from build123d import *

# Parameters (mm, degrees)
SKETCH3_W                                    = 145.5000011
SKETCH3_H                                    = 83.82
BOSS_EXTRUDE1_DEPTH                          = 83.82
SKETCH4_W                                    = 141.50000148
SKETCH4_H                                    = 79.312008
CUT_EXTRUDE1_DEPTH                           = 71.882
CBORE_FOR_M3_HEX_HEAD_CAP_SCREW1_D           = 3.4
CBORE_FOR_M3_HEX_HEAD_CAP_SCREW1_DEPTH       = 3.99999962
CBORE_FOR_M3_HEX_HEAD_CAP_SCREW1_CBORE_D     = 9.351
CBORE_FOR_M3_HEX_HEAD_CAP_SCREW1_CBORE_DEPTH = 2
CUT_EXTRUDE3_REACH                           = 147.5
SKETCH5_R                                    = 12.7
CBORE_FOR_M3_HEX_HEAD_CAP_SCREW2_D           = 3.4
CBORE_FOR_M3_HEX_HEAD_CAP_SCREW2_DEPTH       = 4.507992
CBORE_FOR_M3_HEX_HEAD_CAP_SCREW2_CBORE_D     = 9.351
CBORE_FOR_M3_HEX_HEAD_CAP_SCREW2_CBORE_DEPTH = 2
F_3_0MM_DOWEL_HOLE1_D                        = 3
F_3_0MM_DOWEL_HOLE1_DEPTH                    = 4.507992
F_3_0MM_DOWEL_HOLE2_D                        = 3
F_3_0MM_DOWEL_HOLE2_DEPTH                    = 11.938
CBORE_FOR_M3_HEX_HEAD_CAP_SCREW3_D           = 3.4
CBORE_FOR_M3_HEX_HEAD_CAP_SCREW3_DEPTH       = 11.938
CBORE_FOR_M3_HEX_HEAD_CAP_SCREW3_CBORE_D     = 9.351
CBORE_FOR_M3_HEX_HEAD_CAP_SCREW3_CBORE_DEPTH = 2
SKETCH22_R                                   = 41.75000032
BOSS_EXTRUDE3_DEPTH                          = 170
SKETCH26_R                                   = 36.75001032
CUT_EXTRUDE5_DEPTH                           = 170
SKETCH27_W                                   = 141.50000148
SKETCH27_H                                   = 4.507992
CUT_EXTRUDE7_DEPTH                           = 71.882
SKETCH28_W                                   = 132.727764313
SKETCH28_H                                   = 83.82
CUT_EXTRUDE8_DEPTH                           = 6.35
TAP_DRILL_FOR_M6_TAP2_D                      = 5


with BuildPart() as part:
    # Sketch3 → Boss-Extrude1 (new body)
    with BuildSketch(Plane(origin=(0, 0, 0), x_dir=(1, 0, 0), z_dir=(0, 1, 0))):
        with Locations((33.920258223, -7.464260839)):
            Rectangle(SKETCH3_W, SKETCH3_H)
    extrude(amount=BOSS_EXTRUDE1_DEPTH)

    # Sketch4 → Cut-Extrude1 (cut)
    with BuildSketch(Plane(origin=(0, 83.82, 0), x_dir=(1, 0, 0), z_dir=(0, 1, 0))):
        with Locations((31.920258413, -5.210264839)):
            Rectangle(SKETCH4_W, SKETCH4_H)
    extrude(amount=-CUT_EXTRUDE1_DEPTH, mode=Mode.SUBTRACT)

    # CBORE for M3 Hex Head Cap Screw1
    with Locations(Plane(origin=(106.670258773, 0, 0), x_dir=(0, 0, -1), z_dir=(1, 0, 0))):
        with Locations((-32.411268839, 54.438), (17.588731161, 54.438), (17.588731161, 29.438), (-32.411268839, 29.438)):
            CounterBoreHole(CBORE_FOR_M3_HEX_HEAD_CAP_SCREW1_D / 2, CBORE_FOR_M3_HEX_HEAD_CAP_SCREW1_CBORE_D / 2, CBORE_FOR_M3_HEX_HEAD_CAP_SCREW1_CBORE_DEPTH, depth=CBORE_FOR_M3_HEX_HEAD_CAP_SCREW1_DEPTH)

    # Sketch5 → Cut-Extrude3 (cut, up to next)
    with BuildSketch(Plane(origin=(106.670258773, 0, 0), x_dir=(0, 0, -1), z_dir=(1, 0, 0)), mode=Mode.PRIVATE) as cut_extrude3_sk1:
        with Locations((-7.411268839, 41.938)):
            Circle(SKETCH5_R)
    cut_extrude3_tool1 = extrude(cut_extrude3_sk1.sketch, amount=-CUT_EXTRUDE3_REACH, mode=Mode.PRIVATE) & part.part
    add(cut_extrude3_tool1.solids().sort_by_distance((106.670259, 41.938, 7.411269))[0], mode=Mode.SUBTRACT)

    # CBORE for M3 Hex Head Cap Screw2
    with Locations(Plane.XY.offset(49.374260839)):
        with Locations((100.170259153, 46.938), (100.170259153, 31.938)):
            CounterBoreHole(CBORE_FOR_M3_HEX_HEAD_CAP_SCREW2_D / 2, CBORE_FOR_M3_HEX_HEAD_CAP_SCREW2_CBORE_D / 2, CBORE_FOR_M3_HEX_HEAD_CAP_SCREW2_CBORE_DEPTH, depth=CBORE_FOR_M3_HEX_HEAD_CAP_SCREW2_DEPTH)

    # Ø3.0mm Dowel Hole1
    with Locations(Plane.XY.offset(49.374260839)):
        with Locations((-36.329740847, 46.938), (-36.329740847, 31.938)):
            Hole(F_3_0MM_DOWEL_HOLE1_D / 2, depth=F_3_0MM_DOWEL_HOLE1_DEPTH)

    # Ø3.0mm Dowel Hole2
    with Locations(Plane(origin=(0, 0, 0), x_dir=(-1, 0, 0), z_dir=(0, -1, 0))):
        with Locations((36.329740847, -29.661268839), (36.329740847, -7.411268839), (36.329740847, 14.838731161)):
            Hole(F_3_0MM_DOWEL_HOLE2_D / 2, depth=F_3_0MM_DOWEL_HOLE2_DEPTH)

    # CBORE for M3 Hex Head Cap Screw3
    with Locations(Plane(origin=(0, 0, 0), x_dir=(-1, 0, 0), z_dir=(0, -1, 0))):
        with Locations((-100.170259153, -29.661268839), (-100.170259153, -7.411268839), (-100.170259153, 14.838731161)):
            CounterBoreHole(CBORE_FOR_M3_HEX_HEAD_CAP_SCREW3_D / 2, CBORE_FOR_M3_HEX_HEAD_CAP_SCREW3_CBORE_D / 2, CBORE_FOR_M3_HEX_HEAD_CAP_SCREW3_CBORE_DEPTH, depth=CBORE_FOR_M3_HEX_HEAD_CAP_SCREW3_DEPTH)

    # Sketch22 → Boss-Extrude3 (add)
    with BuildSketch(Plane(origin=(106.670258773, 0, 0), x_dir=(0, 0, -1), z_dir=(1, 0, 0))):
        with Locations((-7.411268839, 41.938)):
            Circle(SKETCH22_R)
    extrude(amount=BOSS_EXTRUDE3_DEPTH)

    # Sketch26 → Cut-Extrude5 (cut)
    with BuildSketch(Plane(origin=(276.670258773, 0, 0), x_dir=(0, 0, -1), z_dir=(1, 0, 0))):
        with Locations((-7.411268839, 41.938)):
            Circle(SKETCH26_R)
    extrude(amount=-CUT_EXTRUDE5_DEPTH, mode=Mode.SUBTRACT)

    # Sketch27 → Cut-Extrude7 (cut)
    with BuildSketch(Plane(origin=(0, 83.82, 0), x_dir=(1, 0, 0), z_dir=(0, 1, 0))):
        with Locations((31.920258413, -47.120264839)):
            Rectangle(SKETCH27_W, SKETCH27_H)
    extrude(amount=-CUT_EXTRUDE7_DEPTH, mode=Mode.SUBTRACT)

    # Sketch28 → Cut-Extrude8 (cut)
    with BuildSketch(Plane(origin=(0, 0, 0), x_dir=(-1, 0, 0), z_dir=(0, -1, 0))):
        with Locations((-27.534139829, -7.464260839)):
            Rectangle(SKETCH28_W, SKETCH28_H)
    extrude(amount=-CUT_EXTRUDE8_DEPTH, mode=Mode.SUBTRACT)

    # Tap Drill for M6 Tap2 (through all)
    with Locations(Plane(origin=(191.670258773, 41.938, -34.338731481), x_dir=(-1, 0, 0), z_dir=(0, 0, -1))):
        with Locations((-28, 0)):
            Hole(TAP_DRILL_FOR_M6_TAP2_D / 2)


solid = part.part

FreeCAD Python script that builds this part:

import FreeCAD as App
import Part
import Sketcher

V = App.Vector

doc = App.newDocument("Part")
body = doc.addObject("PartDesign::Body", "Body")

# Sketch on XZ plane
sketch1 = body.newObject("Sketcher::SketchObject", "Sketch")
sketch1.AttachmentSupport = (doc.getObject("XZ_Plane"), [""])
sketch1.MapMode = "FlatFace"
sketch1.addGeometry([
    Part.LineSegment(V(-39, -34, 0), V(-39, 49, 0)),
    Part.LineSegment(V(-39, 49, 0), V(107, 49, 0)),
    Part.LineSegment(V(107, 49, 0), V(107, -34, 0)),
    Part.LineSegment(V(107, -34, 0), V(-39, -34, 0)),
], False)
sketch1.addConstraint([
    Sketcher.Constraint("Coincident", 0, 2, 1, 1),
    Sketcher.Constraint("Coincident", 1, 2, 2, 1),
    Sketcher.Constraint("Coincident", 2, 2, 3, 1),
    Sketcher.Constraint("Coincident", 3, 2, 0, 1),
    Sketcher.Constraint("Vertical", 0),
    Sketcher.Constraint("Horizontal", 1),
    Sketcher.Constraint("Vertical", 2),
    Sketcher.Constraint("Horizontal", 3),
    Sketcher.Constraint("DistanceX", 1, 1, 1, 2, 145.500001),
    Sketcher.Constraint("DistanceY", 0, 1, 0, 2, 83.82),
    Sketcher.Constraint("DistanceY", -1, 1, 0, 2, 49.374261),
    Sketcher.Constraint("DistanceX", -1, 1, 1, 2, 106.670259),
])
pad1 = body.newObject("PartDesign::Pad", "Pad")
pad1.Profile = sketch1
pad1.Length = 83.82
pad1.Reversed = True

# Sketch on XZ plane
sketch2 = body.newObject("Sketcher::SketchObject", "Sketch001")
sketch2.AttachmentSupport = (doc.getObject("XZ_Plane"), [""])
sketch2.MapMode = "FlatFace"
sketch2.AttachmentOffset = App.Placement(V(0, 0, -83.82), App.Rotation())
sketch2.addGeometry([
    Part.LineSegment(V(-39, -34, 0), V(-39, 45, 0)),
    Part.LineSegment(V(-39, 45, 0), V(103, 45, 0)),
    Part.LineSegment(V(103, 45, 0), V(103, -34, 0)),
    Part.LineSegment(V(103, -34, 0), V(-39, -34, 0)),
], False)
sketch2.addConstraint([
    Sketcher.Constraint("Coincident", 0, 2, 1, 1),
    Sketcher.Constraint("Coincident", 1, 2, 2, 1),
    Sketcher.Constraint("Coincident", 2, 2, 3, 1),
    Sketcher.Constraint("Coincident", 3, 2, 0, 1),
    Sketcher.Constraint("Vertical", 0),
    Sketcher.Constraint("Horizontal", 1),
    Sketcher.Constraint("Vertical", 2),
    Sketcher.Constraint("Horizontal", 3),
    Sketcher.Constraint("DistanceX", 1, 1, 1, 2, 141.500001),
    Sketcher.Constraint("DistanceY", 0, 1, 0, 2, 79.312008),
    Sketcher.Constraint("DistanceY", -1, 1, 0, 2, 44.866269),
    Sketcher.Constraint("DistanceX", -1, 1, 1, 2, 102.670259),
])
pocket1 = body.newObject("PartDesign::Pocket", "Pocket")
pocket1.Profile = sketch2
pocket1.Length = 71.882
pocket1.Reversed = True

# Sketch on YZ plane
sketch3 = body.newObject("Sketcher::SketchObject", "Sketch002")
sketch3.AttachmentSupport = (doc.getObject("YZ_Plane"), [""])
sketch3.MapMode = "FlatFace"
sketch3.AttachmentOffset = App.Placement(V(0, 0, 106.670259), App.Rotation())
sketch3.addGeometry([
    Part.Circle(V(54.4, 32.4, 0), V(0, 0, 1), 1.7),
    Part.Circle(V(54.4, -17.6, 0), V(0, 0, 1), 1.7),
    Part.Circle(V(29.4, -17.6, 0), V(0, 0, 1), 1.7),
    Part.Circle(V(29.4, 32.4, 0), V(0, 0, 1), 1.7),
], False)
sketch3.addConstraint([
    Sketcher.Constraint("Equal", 0, 1),
    Sketcher.Constraint("Equal", 1, 2),
    Sketcher.Constraint("Equal", 2, 3),
    Sketcher.Constraint("Horizontal", 1, 3, 2, 3),
    Sketcher.Constraint("Horizontal", 0, 3, 3, 3),
    Sketcher.Constraint("Vertical", 0, 3, 1, 3),
    Sketcher.Constraint("Vertical", 2, 3, 3, 3),
    Sketcher.Constraint("Diameter", 0, 3.4),
    Sketcher.Constraint("DistanceY", 1, 3, 0, 3, 50.0),
    Sketcher.Constraint("DistanceX", 2, 3, 1, 3, 25.0),
    Sketcher.Constraint("DistanceX", -1, 1, 0, 3, 54.438),
    Sketcher.Constraint("DistanceY", -1, 1, 0, 3, 32.411269),
])
doc.recompute()
hole = body.newObject("PartDesign::Hole", "Hole")
hole.Profile = sketch3
hole.ThreadType = "None"
hole.Diameter = 3.4
hole.DepthType = "Dimension"
hole.Depth = 4
hole.DrillPoint = "Flat"
hole.HoleCutType = "Counterbore"
hole.HoleCutDiameter = 9.351
hole.HoleCutDepth = 2

# Sketch on YZ plane
sketch4 = body.newObject("Sketcher::SketchObject", "Sketch003")
sketch4.AttachmentSupport = (doc.getObject("YZ_Plane"), [""])
sketch4.MapMode = "FlatFace"
sketch4.AttachmentOffset = App.Placement(V(0, 0, 106.670259), App.Rotation())
sketch4.addGeometry(Part.Circle(V(42, 7, 0), V(0, 0, 1), 13), False)
sketch4.addConstraint([
    Sketcher.Constraint("Diameter", 0, 25.4),
    Sketcher.Constraint("DistanceX", -1, 1, 0, 3, 41.938),
    Sketcher.Constraint("DistanceY", -1, 1, 0, 3, 7.411269),
])
pocket2 = body.newObject("PartDesign::Pocket", "Pocket001")
pocket2.Profile = sketch4
pocket2.Type = "UpToFirst"

# Sketch on XY plane
sketch5 = body.newObject("Sketcher::SketchObject", "Sketch004")
sketch5.AttachmentSupport = (doc.getObject("XY_Plane"), [""])
sketch5.MapMode = "FlatFace"
sketch5.AttachmentOffset = App.Placement(V(0, 0, 49.374261), App.Rotation())
sketch5.addGeometry([
    Part.Circle(V(100.2, 46.9, 0), V(0, 0, 1), 1.7),
    Part.Circle(V(100.2, 31.9, 0), V(0, 0, 1), 1.7),
], False)
sketch5.addConstraint([
    Sketcher.Constraint("Equal", 0, 1),
    Sketcher.Constraint("Vertical", 0, 3, 1, 3),
    Sketcher.Constraint("Diameter", 0, 3.4),
    Sketcher.Constraint("DistanceY", 1, 3, 0, 3, 15.0),
    Sketcher.Constraint("DistanceY", -1, 1, 0, 3, 46.938),
    Sketcher.Constraint("DistanceX", -1, 1, 0, 3, 100.170259),
])
doc.recompute()
hole2 = body.newObject("PartDesign::Hole", "Hole001")
hole2.Profile = sketch5
hole2.ThreadType = "None"
hole2.Diameter = 3.4
hole2.DepthType = "Dimension"
hole2.Depth = 4.507992
hole2.DrillPoint = "Flat"
hole2.HoleCutType = "Counterbore"
hole2.HoleCutDiameter = 9.351
hole2.HoleCutDepth = 2

# Sketch on XY plane
sketch6 = body.newObject("Sketcher::SketchObject", "Sketch005")
sketch6.AttachmentSupport = (doc.getObject("XY_Plane"), [""])
sketch6.MapMode = "FlatFace"
sketch6.AttachmentOffset = App.Placement(V(0, 0, 49.374261), App.Rotation())
sketch6.addGeometry([
    Part.Circle(V(-36.3, 46.9, 0), V(0, 0, 1), 1.5),
    Part.Circle(V(-36.3, 31.9, 0), V(0, 0, 1), 1.5),
], False)
sketch6.addConstraint([
    Sketcher.Constraint("Equal", 0, 1),
    Sketcher.Constraint("Vertical", 0, 3, 1, 3),
    Sketcher.Constraint("Diameter", 0, 3.0),
    Sketcher.Constraint("DistanceY", 1, 3, 0, 3, 15.0),
    Sketcher.Constraint("DistanceY", -1, 1, 0, 3, 46.938),
    Sketcher.Constraint("DistanceX", 0, 3, -1, 1, 36.329741),
])
doc.recompute()
hole3 = body.newObject("PartDesign::Hole", "Hole002")
hole3.Profile = sketch6
hole3.ThreadType = "None"
hole3.Diameter = 3
hole3.DepthType = "Dimension"
hole3.Depth = 4.507992
hole3.DrillPoint = "Flat"

# Sketch on XZ plane
sketch7 = body.newObject("Sketcher::SketchObject", "Sketch006")
sketch7.AttachmentSupport = (doc.getObject("XZ_Plane"), [""])
sketch7.MapMode = "FlatFace"
sketch7.addGeometry([
    Part.Circle(V(-36.3, 29.7, 0), V(0, 0, 1), 1.5),
    Part.Circle(V(-36.3, 7.4, 0), V(0, 0, 1), 1.5),
    Part.Circle(V(-36.3, -14.8, 0), V(0, 0, 1), 1.5),
], False)
sketch7.addConstraint([
    Sketcher.Constraint("Equal", 0, 1),
    Sketcher.Constraint("Equal", 1, 2),
    Sketcher.Constraint("Vertical", 0, 3, 1, 3),
    Sketcher.Constraint("Vertical", 1, 3, 2, 3),
    Sketcher.Constraint("Diameter", 0, 3.0),
    Sketcher.Constraint("DistanceY", 2, 3, 0, 3, 44.5),
    Sketcher.Constraint("DistanceY", 1, 3, 0, 3, 22.25),
    Sketcher.Constraint("DistanceX", 0, 3, -1, 1, 36.329741),
    Sketcher.Constraint("DistanceY", -1, 1, 0, 3, 29.661269),
])
doc.recompute()
hole4 = body.newObject("PartDesign::Hole", "Hole003")
hole4.Profile = sketch7
hole4.ThreadType = "None"
hole4.Diameter = 3
hole4.DepthType = "Dimension"
hole4.Depth = 11.938
hole4.DrillPoint = "Flat"

# Sketch on XZ plane
sketch8 = body.newObject("Sketcher::SketchObject", "Sketch007")
sketch8.AttachmentSupport = (doc.getObject("XZ_Plane"), [""])
sketch8.MapMode = "FlatFace"
sketch8.addGeometry([
    Part.Circle(V(100.2, 29.7, 0), V(0, 0, 1), 1.7),
    Part.Circle(V(100.2, 7.4, 0), V(0, 0, 1), 1.7),
    Part.Circle(V(100.2, -14.8, 0), V(0, 0, 1), 1.7),
], False)
sketch8.addConstraint([
    Sketcher.Constraint("Equal", 0, 1),
    Sketcher.Constraint("Equal", 1, 2),
    Sketcher.Constraint("Vertical", 0, 3, 1, 3),
    Sketcher.Constraint("Vertical", 1, 3, 2, 3),
    Sketcher.Constraint("Diameter", 0, 3.4),
    Sketcher.Constraint("DistanceY", 2, 3, 0, 3, 44.5),
    Sketcher.Constraint("DistanceY", 1, 3, 0, 3, 22.25),
    Sketcher.Constraint("DistanceX", -1, 1, 0, 3, 100.170259),
    Sketcher.Constraint("DistanceY", -1, 1, 0, 3, 29.661269),
])
doc.recompute()
hole5 = body.newObject("PartDesign::Hole", "Hole004")
hole5.Profile = sketch8
hole5.ThreadType = "None"
hole5.Diameter = 3.4
hole5.DepthType = "Dimension"
hole5.Depth = 11.938
hole5.DrillPoint = "Flat"
hole5.HoleCutType = "Counterbore"
hole5.HoleCutDiameter = 9.351
hole5.HoleCutDepth = 2

# Sketch on YZ plane
sketch9 = body.newObject("Sketcher::SketchObject", "Sketch008")
sketch9.AttachmentSupport = (doc.getObject("YZ_Plane"), [""])
sketch9.MapMode = "FlatFace"
sketch9.AttachmentOffset = App.Placement(V(0, 0, 106.670259), App.Rotation())
sketch9.addGeometry(Part.Circle(V(42, 7, 0), V(0, 0, 1), 42), False)
sketch9.addConstraint([
    Sketcher.Constraint("Diameter", 0, 83.500001),
    Sketcher.Constraint("DistanceX", -1, 1, 0, 3, 41.938),
    Sketcher.Constraint("DistanceY", -1, 1, 0, 3, 7.411269),
])
pad2 = body.newObject("PartDesign::Pad", "Pad001")
pad2.Profile = sketch9
pad2.Length = 170

# Sketch on YZ plane
sketch10 = body.newObject("Sketcher::SketchObject", "Sketch009")
sketch10.AttachmentSupport = (doc.getObject("YZ_Plane"), [""])
sketch10.MapMode = "FlatFace"
sketch10.AttachmentOffset = App.Placement(V(0, 0, 276.670259), App.Rotation())
sketch10.addGeometry(Part.Circle(V(42, 7, 0), V(0, 0, 1), 37), False)
sketch10.addConstraint([
    Sketcher.Constraint("Diameter", 0, 73.500021),
    Sketcher.Constraint("DistanceX", -1, 1, 0, 3, 41.938),
    Sketcher.Constraint("DistanceY", -1, 1, 0, 3, 7.411269),
])
pocket3 = body.newObject("PartDesign::Pocket", "Pocket002")
pocket3.Profile = sketch10
pocket3.Length = 170

# Sketch on XZ plane
sketch11 = body.newObject("Sketcher::SketchObject", "Sketch010")
sketch11.AttachmentSupport = (doc.getObject("XZ_Plane"), [""])
sketch11.MapMode = "FlatFace"
sketch11.AttachmentOffset = App.Placement(V(0, 0, -83.82), App.Rotation())
sketch11.addGeometry([
    Part.LineSegment(V(-38.8, 44.9, 0), V(-38.8, 49.4, 0)),
    Part.LineSegment(V(-38.8, 49.4, 0), V(102.7, 49.4, 0)),
    Part.LineSegment(V(102.7, 49.4, 0), V(102.7, 44.9, 0)),
    Part.LineSegment(V(102.7, 44.9, 0), V(-38.8, 44.9, 0)),
], False)
sketch11.addConstraint([
    Sketcher.Constraint("Coincident", 0, 2, 1, 1),
    Sketcher.Constraint("Coincident", 1, 2, 2, 1),
    Sketcher.Constraint("Coincident", 2, 2, 3, 1),
    Sketcher.Constraint("Coincident", 3, 2, 0, 1),
    Sketcher.Constraint("Vertical", 0),
    Sketcher.Constraint("Horizontal", 1),
    Sketcher.Constraint("Vertical", 2),
    Sketcher.Constraint("Horizontal", 3),
    Sketcher.Constraint("DistanceX", 1, 1, 1, 2, 141.500001),
    Sketcher.Constraint("DistanceY", 0, 1, 0, 2, 4.507992),
    Sketcher.Constraint("DistanceY", -1, 1, 0, 2, 49.374261),
    Sketcher.Constraint("DistanceX", -1, 1, 1, 2, 102.670259),
])
pocket4 = body.newObject("PartDesign::Pocket", "Pocket003")
pocket4.Profile = sketch11
pocket4.Length = 71.882
pocket4.Reversed = True

# Sketch on XZ plane
sketch12 = body.newObject("Sketcher::SketchObject", "Sketch011")
sketch12.AttachmentSupport = (doc.getObject("XZ_Plane"), [""])
sketch12.MapMode = "FlatFace"
sketch12.addGeometry([
    Part.LineSegment(V(94, -34, 0), V(94, 49, 0)),
    Part.LineSegment(V(94, 49, 0), V(-39, 49, 0)),
    Part.LineSegment(V(-39, 49, 0), V(-39, -34, 0)),
    Part.LineSegment(V(-39, -34, 0), V(94, -34, 0)),
], False)
sketch12.addConstraint([
    Sketcher.Constraint("Coincident", 0, 2, 1, 1),
    Sketcher.Constraint("Coincident", 1, 2, 2, 1),
    Sketcher.Constraint("Coincident", 2, 2, 3, 1),
    Sketcher.Constraint("Coincident", 3, 2, 0, 1),
    Sketcher.Constraint("Vertical", 0),
    Sketcher.Constraint("Horizontal", 1),
    Sketcher.Constraint("Vertical", 2),
    Sketcher.Constraint("Horizontal", 3),
    Sketcher.Constraint("DistanceY", 0, 1, 0, 2, 83.82),
    Sketcher.Constraint("DistanceX", 1, 2, 1, 1, 132.727764),
    Sketcher.Constraint("DistanceX", -1, 1, 0, 2, 93.898022),
    Sketcher.Constraint("DistanceY", -1, 1, 0, 2, 49.374261),
])
pocket5 = body.newObject("PartDesign::Pocket", "Pocket004")
pocket5.Profile = sketch12
pocket5.Length = 6.35

# Sketch on XY plane
sketch13 = body.newObject("Sketcher::SketchObject", "Sketch012")
sketch13.AttachmentSupport = (doc.getObject("XY_Plane"), [""])
sketch13.MapMode = "FlatFace"
sketch13.AttachmentOffset = App.Placement(V(0, 0, -34.338731), App.Rotation())
sketch13.addGeometry(Part.Circle(V(219.7, 41.9, 0), V(0, 0, 1), 2.5), False)
sketch13.addConstraint([
    Sketcher.Constraint("Diameter", 0, 5.0),
    Sketcher.Constraint("DistanceY", -1, 1, 0, 3, 41.938),
    Sketcher.Constraint("DistanceX", -1, 1, 0, 3, 219.670259),
])
doc.recompute()
hole6 = body.newObject("PartDesign::Hole", "Hole005")
hole6.Profile = sketch13
hole6.ThreadType = "None"
hole6.Diameter = 5
hole6.DepthType = "ThroughAll"
hole6.Reversed = True

doc.recompute()
